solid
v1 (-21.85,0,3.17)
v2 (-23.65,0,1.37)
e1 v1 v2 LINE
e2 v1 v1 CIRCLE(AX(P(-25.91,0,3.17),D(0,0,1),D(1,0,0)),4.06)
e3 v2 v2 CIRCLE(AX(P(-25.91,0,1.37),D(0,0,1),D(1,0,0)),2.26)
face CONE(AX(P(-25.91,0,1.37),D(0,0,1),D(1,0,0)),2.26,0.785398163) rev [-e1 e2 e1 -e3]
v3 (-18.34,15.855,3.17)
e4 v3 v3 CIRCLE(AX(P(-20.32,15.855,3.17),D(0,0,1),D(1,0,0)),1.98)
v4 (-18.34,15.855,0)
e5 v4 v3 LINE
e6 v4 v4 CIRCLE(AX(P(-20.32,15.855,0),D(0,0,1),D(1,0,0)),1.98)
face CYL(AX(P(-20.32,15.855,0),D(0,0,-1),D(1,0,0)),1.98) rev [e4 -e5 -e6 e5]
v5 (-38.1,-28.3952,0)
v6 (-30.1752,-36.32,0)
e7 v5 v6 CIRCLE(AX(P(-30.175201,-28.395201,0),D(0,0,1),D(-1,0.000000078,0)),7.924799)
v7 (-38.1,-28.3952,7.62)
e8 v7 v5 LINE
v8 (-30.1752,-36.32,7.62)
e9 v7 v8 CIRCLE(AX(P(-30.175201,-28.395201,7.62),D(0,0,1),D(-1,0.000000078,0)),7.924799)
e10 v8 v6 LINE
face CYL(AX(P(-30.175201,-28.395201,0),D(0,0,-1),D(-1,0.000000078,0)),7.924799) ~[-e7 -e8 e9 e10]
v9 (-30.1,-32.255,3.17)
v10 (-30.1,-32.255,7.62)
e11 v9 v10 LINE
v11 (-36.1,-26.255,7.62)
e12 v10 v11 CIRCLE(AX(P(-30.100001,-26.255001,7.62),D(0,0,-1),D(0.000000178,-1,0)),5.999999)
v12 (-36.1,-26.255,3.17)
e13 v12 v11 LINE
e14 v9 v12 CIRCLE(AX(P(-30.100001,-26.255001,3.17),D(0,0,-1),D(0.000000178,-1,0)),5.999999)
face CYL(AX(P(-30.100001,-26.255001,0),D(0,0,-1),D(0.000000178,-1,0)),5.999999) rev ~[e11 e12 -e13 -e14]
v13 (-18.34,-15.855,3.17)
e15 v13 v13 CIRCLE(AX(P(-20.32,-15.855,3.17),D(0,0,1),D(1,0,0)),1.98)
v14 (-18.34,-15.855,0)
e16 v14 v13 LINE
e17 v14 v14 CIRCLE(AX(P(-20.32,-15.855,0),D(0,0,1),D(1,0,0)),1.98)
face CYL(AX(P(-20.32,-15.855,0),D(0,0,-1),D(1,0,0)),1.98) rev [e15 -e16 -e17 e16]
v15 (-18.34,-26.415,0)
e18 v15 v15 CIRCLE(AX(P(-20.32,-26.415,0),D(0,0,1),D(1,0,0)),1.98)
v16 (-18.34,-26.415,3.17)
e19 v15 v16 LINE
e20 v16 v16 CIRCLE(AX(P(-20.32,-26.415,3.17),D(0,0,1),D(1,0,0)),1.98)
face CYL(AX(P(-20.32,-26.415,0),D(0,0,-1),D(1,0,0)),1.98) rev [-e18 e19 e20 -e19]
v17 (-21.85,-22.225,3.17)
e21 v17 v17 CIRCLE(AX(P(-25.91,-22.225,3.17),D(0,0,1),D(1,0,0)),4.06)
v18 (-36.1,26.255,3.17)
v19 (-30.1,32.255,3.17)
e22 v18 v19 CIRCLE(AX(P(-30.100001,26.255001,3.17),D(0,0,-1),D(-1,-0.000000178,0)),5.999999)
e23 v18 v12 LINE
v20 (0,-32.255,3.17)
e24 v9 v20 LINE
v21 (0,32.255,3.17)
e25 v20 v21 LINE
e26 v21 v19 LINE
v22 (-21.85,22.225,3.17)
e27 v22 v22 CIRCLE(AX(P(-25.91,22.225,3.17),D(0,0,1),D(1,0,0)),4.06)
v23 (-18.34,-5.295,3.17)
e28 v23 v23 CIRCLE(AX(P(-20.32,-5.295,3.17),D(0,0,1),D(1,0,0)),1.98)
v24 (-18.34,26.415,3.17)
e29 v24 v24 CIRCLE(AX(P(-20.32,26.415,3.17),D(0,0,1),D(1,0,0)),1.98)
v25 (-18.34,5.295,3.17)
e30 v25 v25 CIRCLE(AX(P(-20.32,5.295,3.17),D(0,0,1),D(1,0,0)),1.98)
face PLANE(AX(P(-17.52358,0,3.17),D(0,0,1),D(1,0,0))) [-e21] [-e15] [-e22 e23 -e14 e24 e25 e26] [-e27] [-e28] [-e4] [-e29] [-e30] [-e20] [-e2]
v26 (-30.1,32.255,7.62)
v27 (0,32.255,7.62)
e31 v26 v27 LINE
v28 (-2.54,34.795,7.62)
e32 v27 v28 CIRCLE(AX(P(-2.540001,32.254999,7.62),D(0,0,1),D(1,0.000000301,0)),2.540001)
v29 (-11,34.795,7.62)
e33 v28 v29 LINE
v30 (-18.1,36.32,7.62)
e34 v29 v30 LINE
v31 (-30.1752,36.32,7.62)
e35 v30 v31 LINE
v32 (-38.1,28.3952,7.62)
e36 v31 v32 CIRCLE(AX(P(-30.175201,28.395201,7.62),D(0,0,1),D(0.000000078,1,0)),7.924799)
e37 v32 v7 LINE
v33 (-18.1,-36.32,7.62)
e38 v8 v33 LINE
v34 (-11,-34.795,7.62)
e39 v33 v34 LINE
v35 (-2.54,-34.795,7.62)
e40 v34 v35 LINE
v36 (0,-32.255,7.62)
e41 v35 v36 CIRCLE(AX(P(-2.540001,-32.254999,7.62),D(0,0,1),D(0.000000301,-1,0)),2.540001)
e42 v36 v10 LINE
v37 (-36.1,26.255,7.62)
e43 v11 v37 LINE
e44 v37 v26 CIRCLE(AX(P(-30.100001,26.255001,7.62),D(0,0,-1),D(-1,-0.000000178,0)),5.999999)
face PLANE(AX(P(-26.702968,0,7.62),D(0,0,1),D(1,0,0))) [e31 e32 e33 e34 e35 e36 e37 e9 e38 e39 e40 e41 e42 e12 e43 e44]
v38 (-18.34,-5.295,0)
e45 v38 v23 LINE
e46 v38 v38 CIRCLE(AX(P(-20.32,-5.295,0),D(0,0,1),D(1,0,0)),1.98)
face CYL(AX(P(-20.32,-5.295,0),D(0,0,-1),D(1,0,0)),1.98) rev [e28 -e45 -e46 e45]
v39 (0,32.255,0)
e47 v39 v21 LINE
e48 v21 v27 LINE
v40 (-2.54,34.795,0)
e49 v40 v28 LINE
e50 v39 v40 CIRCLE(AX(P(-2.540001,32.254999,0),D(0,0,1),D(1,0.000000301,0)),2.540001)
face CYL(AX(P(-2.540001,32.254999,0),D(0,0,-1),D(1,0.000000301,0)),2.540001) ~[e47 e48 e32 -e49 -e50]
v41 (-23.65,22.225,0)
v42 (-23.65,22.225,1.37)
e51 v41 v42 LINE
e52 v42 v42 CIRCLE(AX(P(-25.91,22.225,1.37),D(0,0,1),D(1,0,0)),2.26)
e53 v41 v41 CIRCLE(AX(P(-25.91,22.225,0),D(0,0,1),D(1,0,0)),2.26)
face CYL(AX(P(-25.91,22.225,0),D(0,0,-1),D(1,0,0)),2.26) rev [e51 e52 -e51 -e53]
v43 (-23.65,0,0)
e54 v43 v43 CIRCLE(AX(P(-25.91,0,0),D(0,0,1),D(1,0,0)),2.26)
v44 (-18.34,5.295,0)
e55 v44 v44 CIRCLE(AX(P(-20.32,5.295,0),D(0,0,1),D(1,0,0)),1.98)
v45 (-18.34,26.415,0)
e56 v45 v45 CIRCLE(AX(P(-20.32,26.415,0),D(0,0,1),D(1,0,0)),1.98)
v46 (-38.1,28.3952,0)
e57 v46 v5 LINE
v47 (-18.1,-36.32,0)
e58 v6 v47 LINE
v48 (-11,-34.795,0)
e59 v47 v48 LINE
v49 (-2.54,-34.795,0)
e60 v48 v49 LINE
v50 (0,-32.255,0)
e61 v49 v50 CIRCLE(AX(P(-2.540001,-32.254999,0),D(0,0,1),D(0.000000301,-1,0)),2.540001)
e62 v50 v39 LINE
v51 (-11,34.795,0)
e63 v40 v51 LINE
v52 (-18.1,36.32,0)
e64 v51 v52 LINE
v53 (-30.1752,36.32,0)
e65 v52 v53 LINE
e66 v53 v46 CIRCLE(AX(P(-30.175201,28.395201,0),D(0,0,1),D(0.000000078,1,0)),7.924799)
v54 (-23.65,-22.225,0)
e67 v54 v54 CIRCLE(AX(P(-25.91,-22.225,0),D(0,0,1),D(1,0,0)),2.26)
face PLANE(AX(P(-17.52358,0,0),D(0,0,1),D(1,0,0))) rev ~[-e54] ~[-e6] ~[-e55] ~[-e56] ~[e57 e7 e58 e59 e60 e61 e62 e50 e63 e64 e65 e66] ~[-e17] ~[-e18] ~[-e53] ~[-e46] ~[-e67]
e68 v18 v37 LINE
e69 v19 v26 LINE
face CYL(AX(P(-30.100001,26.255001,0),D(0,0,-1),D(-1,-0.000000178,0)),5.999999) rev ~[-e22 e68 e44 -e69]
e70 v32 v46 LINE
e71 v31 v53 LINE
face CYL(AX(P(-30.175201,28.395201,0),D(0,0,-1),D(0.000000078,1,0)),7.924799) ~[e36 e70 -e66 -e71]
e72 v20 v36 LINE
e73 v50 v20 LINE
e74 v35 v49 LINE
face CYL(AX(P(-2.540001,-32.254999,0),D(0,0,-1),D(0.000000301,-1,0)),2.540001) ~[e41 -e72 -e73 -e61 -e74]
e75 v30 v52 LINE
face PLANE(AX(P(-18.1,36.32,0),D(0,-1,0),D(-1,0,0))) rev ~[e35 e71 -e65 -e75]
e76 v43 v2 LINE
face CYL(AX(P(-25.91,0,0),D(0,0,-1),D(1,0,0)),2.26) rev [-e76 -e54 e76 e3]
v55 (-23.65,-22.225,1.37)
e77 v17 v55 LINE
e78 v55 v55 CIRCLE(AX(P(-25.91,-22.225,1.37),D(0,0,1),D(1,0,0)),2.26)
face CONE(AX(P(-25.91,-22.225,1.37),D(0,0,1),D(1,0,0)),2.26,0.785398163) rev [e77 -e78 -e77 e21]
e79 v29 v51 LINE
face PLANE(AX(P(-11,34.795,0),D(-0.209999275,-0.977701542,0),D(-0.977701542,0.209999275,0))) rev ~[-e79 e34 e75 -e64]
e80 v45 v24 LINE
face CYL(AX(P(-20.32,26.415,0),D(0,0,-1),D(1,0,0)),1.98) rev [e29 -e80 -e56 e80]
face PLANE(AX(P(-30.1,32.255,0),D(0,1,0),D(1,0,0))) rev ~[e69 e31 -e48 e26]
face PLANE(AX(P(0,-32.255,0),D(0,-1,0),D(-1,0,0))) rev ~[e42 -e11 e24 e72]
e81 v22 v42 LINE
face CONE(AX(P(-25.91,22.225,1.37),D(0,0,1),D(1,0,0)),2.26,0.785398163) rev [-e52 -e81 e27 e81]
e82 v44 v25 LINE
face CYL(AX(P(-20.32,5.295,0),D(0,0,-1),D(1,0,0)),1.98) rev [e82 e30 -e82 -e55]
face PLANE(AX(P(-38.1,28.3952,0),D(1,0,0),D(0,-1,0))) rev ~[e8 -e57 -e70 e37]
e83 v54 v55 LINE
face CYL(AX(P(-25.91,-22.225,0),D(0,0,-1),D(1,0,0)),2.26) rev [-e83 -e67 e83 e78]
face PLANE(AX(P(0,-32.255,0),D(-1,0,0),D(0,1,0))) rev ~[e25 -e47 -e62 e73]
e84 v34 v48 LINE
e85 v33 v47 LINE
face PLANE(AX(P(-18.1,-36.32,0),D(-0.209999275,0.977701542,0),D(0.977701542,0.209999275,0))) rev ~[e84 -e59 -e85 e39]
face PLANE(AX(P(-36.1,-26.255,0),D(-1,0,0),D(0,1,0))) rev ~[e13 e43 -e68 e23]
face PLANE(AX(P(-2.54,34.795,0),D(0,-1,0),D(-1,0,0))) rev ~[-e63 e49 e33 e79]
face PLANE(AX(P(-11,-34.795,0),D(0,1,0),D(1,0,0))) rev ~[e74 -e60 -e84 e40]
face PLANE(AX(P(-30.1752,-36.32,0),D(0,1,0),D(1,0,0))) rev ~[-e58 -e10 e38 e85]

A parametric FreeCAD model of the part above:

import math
import FreeCAD as App
import Part
import Sketcher
from FreeCAD import Vector
Q = App.Units.Quantity


def edges_at(feature, points):
    """Names of the edges that pass closest to the given points."""
    edges = feature.Shape.Edges
    near = lambda p: min(range(len(edges)), key=lambda i: edges[i].distToShape(Part.Vertex(*p))[0])
    return sorted({f"Edge{near(p) + 1}" for p in points})

doc = App.newDocument("Part")
body = doc.addObject("PartDesign::Body", "Body")

sketch1 = body.newObject("Sketcher::SketchObject", "Sketch")
sketch1.AttachmentSupport = (doc.getObject("XY_Plane"), [""])
sketch1.MapMode = "FlatFace"
sketch1.addGeometry([
    Part.LineSegment(Vector(0, -32.3, 0), Vector(0, 32.3, 0)),
    Part.ArcOfCircle(Part.Circle(Vector(-2.5, 32.3, 0), Vector(0, 0, 1), 2.5), math.radians(0), math.radians(90)),
    Part.LineSegment(Vector(-2.5, 34.8, 0), Vector(-11, 34.8, 0)),
    Part.LineSegment(Vector(-11, 34.8, 0), Vector(-18.1, 36.3, 0)),
    Part.LineSegment(Vector(-18.1, 36.3, 0), Vector(-30.2, 36.3, 0)),
    Part.ArcOfCircle(Part.Circle(Vector(-30.2, 28.4, 0), Vector(0, 0, 1), 7.9), math.radians(90), math.radians(180)),
    Part.LineSegment(Vector(-38.1, 28.4, 0), Vector(-38.1, -28.4, 0)),
    Part.ArcOfCircle(Part.Circle(Vector(-30.2, -28.4, 0), Vector(0, 0, 1), 7.9), math.radians(180), math.radians(270)),
    Part.LineSegment(Vector(-30.2, -36.3, 0), Vector(-18.1, -36.3, 0)),
    Part.LineSegment(Vector(-18.1, -36.3, 0), Vector(-11, -34.8, 0)),
    Part.LineSegment(Vector(-11, -34.8, 0), Vector(-2.5, -34.8, 0)),
    Part.ArcOfCircle(Part.Circle(Vector(-2.5, -32.3, 0), Vector(0, 0, 1), 2.5), math.radians(-90), math.radians(0)),
    Part.Circle(Vector(-25.9, -22.2, 0), Vector(0, 0, 1), 2.3),
    Part.Circle(Vector(-20.3, -26.4, 0), Vector(0, 0, 1), 2),
    Part.Circle(Vector(-20.3, -15.9, 0), Vector(0, 0, 1), 2),
    Part.Circle(Vector(-20.3, -5.3, 0), Vector(0, 0, 1), 2),
    Part.Circle(Vector(-25.9, 0, 0), Vector(0, 0, 1), 2.3),
    Part.Circle(Vector(-25.9, 22.2, 0), Vector(0, 0, 1), 2.3),
    Part.Circle(Vector(-20.3, 5.3, 0), Vector(0, 0, 1), 2),
    Part.Circle(Vector(-20.3, 15.9, 0), Vector(0, 0, 1), 2),
    Part.Circle(Vector(-20.3, 26.4, 0), Vector(0, 0, 1), 2),
], False)
sketch1.addConstraint([
    Sketcher.Constraint("Tangent", 0, 2, 1, 1),
    Sketcher.Constraint("Tangent", 1, 2, 2, 1),
    Sketcher.Constraint("Coincident", 2, 2, 3, 1),
    Sketcher.Constraint("Coincident", 3, 2, 4, 1),
    Sketcher.Constraint("Tangent", 4, 2, 5, 1),
    Sketcher.Constraint("Tangent", 5, 2, 6, 1),
    Sketcher.Constraint("Tangent", 6, 2, 7, 1),
    Sketcher.Constraint("Tangent", 7, 2, 8, 1),
    Sketcher.Constraint("Coincident", 8, 2, 9, 1),
    Sketcher.Constraint("Coincident", 9, 2, 10, 1),
    Sketcher.Constraint("Tangent", 10, 2, 11, 1),
    Sketcher.Constraint("Tangent", 11, 2, 0, 1),
    Sketcher.Constraint("Vertical", 0),
    Sketcher.Constraint("Horizontal", 2),
    Sketcher.Constraint("Horizontal", 4),
    Sketcher.Constraint("Vertical", 6),
    Sketcher.Constraint("Horizontal", 8),
    Sketcher.Constraint("Horizontal", 10),
    Sketcher.Constraint("Equal", 5, 7),
    Sketcher.Constraint("Equal", 1, 11),
    Sketcher.Constraint("Equal", 13, 14),
    Sketcher.Constraint("Equal", 14, 15),
    Sketcher.Constraint("Equal", 12, 16),
    Sketcher.Constraint("Equal", 16, 17),
    Sketcher.Constraint("Equal", 15, 18),
    Sketcher.Constraint("Equal", 18, 19),
    Sketcher.Constraint("Equal", 19, 20),
    Sketcher.Constraint("Symmetric", 0, 2, 11, 2, -1, 1),
    Sketcher.Constraint("Symmetric", 12, 3, 17, 3, -1),
    Sketcher.Constraint("Symmetric", 15, 3, 18, 3, -1),
    Sketcher.Constraint("Symmetric", 14, 3, 19, 3, -1),
    Sketcher.Constraint("Symmetric", 13, 3, 20, 3, -1),
    Sketcher.Constraint("Symmetric", 3, 2, 8, 2, -1),
    Sketcher.Constraint("PointOnObject", 16, 3, -1),
    Sketcher.Constraint("Vertical", 13, 3, 14, 3),
    Sketcher.Constraint("Vertical", 14, 3, 15, 3),
    Sketcher.Constraint("Vertical", 12, 3, 16, 3),
    Sketcher.Constraint("Vertical", 2, 2, 9, 2),
    Sketcher.Constraint("Radius", 1, Q("0.1 in")),
    Sketcher.Constraint("Radius", 5, Q("0.312 in")),
    Sketcher.Constraint("DistanceX", 13, 3, -1, 1, Q("0.8 in")),
    Sketcher.Constraint("DistanceX", 5, 2, -1, 1, Q("1.5 in")),
    Sketcher.Constraint("Diameter", 12, Q("4.52 mm")),
    Sketcher.Constraint("Diameter", 13, Q("3.96 mm")),
    Sketcher.Constraint("DistanceY", 12, 3, -1, 1, Q("0.875 in")),
    Sketcher.Constraint("DistanceX", 2, 2, 2, 1, Q("8.46 mm")),
    Sketcher.Constraint("DistanceX", 4, 2, 4, 1, Q("12.0752 mm")),
    Sketcher.Constraint("DistanceY", 0, 1, 0, 2, Q("64.51 mm")),
    Sketcher.Constraint("DistanceY", 6, 2, 6, 1, Q("56.7904 mm")),
    Sketcher.Constraint("DistanceX", 12, 3, -1, 1, Q("25.91 mm")),
    Sketcher.Constraint("DistanceY", 13, 3, -1, 1, Q("26.415 mm")),
    Sketcher.Constraint("DistanceY", 14, 3, -1, 1, Q("15.855 mm")),
    Sketcher.Constraint("DistanceY", 15, 3, -1, 1, Q("5.295 mm")),
])
pad1 = body.newObject("PartDesign::Pad", "Pad")
pad1.Profile = sketch1
pad1.Length = 3.17

sketch2 = body.newObject("Sketcher::SketchObject", "Sketch001")
sketch2.AttachmentSupport = (doc.getObject("XY_Plane"), [""])
sketch2.MapMode = "FlatFace"
sketch2.addGeometry([
    Part.LineSegment(Vector(-30.1, 32.3, 0), Vector(0, 32.3, 0)),
    Part.ArcOfCircle(Part.Circle(Vector(-2.5, 32.3, 0), Vector(0, 0, 1), 2.5), math.radians(0), math.radians(90)),
    Part.LineSegment(Vector(-2.5, 34.8, 0), Vector(-11, 34.8, 0)),
    Part.LineSegment(Vector(-11, 34.8, 0), Vector(-18.1, 36.3, 0)),
    Part.LineSegment(Vector(-18.1, 36.3, 0), Vector(-30.2, 36.3, 0)),
    Part.ArcOfCircle(Part.Circle(Vector(-30.2, 28.4, 0), Vector(0, 0, 1), 7.9), math.radians(90), math.radians(180)),
    Part.LineSegment(Vector(-38.1, 28.4, 0), Vector(-38.1, -28.4, 0)),
    Part.ArcOfCircle(Part.Circle(Vector(-30.2, -28.4, 0), Vector(0, 0, 1), 7.9), math.radians(180), math.radians(270)),
    Part.LineSegment(Vector(-30.2, -36.3, 0), Vector(-18.1, -36.3, 0)),
    Part.LineSegment(Vector(-18.1, -36.3, 0), Vector(-11, -34.8, 0)),
    Part.LineSegment(Vector(-11, -34.8, 0), Vector(-2.5, -34.8, 0)),
    Part.ArcOfCircle(Part.Circle(Vector(-2.5, -32.3, 0), Vector(0, 0, 1), 2.5), math.radians(-90), math.radians(0)),
    Part.LineSegment(Vector(0, -32.3, 0), Vector(-30.1, -32.3, 0)),
    Part.ArcOfCircle(Part.Circle(Vector(-30.1, -26.3, 0), Vector(0, 0, 1), 6), math.radians(180), math.radians(270)),
    Part.LineSegment(Vector(-36.1, -26.3, 0), Vector(-36.1, 26.3, 0)),
    Part.ArcOfCircle(Part.Circle(Vector(-30.1, 26.3, 0), Vector(0, 0, 1), 6), math.radians(90), math.radians(180)),
], False)
sketch2.addConstraint([
    Sketcher.Constraint("Coincident", 0, 2, 1, 1),
    Sketcher.Constraint("Tangent", 1, 2, 2, 1),
    Sketcher.Constraint("Coincident", 2, 2, 3, 1),
    Sketcher.Constraint("Coincident", 3, 2, 4, 1),
    Sketcher.Constraint("Tangent", 4, 2, 5, 1),
    Sketcher.Constraint("Tangent", 5, 2, 6, 1),
    Sketcher.Constraint("Tangent", 6, 2, 7, 1),
    Sketcher.Constraint("Tangent", 7, 2, 8, 1),
    Sketcher.Constraint("Coincident", 8, 2, 9, 1),
    Sketcher.Constraint("Coincident", 9, 2, 10, 1),
    Sketcher.Constraint("Tangent", 10, 2, 11, 1),
    Sketcher.Constraint("Coincident", 11, 2, 12, 1),
    Sketcher.Constraint("Tangent", 12, 2, 13, 2),
    Sketcher.Constraint("Tangent", 13, 1, 14, 1),
    Sketcher.Constraint("Tangent", 14, 2, 15, 2),
    Sketcher.Constraint("Tangent", 15, 1, 0, 1),
    Sketcher.Constraint("Horizontal", 0),
    Sketcher.Constraint("Horizontal", 2),
    Sketcher.Constraint("Horizontal", 4),
    Sketcher.Constraint("Vertical", 6),
    Sketcher.Constraint("Horizontal", 8),
    Sketcher.Constraint("Horizontal", 10),
    Sketcher.Constraint("Horizontal", 12),
    Sketcher.Constraint("Vertical", 14),
    Sketcher.Constraint("Equal", 5, 7),
    Sketcher.Constraint("Equal", 1, 11),
    Sketcher.Constraint("Equal", 13, 15),
    Sketcher.Constraint("Symmetric", 0, 2, 11, 2, -1, 1),
    Sketcher.Constraint("Symmetric", 1, 3, 11, 3, -1),
    Sketcher.Constraint("Symmetric", 3, 2, 8, 2, -1),
    Sketcher.Constraint("Horizontal", 1, 3, 0, 2),
    Sketcher.Constraint("Vertical", 2, 2, 9, 2),
    Sketcher.Constraint("Radius", 1, Q("0.1 in")),
    Sketcher.Constraint("Radius", 5, Q("0.312 in")),
    Sketcher.Constraint("DistanceX", 5, 2, -1, 1, Q("1.5 in")),
    Sketcher.Constraint("Radius", 13, Q("5.999999 mm")),
    Sketcher.Constraint("DistanceX", 0, 1, 0, 2, Q("30.1 mm")),
    Sketcher.Constraint("DistanceX", 2, 2, 2, 1, Q("8.46 mm")),
    Sketcher.Constraint("DistanceX", 4, 2, 4, 1, Q("12.0752 mm")),
    Sketcher.Constraint("DistanceY", 6, 2, 6, 1, Q("56.7904 mm")),
    Sketcher.Constraint("DistanceY", 14, 1, 14, 2, Q("52.51 mm")),
])
pad2 = body.newObject("PartDesign::Pad", "Pad001")
pad2.Profile = sketch2
pad2.Length = Q("0.3 in")
doc.recompute()

chamfer = body.newObject("PartDesign::Chamfer", "Chamfer")
chamfer.Base = (pad2, edges_at(pad2, [(-28.17, -22.225, 3.17), (-28.17, 0, 3.17), (-28.17, 22.225, 3.17)]))
chamfer.Size = 1.8
body2 = doc.addObject("PartDesign::Body", "Body001")
doc.recompute()

body2.BaseFeature = body
doc.recompute()
body.Visibility = False

doc.recompute()
